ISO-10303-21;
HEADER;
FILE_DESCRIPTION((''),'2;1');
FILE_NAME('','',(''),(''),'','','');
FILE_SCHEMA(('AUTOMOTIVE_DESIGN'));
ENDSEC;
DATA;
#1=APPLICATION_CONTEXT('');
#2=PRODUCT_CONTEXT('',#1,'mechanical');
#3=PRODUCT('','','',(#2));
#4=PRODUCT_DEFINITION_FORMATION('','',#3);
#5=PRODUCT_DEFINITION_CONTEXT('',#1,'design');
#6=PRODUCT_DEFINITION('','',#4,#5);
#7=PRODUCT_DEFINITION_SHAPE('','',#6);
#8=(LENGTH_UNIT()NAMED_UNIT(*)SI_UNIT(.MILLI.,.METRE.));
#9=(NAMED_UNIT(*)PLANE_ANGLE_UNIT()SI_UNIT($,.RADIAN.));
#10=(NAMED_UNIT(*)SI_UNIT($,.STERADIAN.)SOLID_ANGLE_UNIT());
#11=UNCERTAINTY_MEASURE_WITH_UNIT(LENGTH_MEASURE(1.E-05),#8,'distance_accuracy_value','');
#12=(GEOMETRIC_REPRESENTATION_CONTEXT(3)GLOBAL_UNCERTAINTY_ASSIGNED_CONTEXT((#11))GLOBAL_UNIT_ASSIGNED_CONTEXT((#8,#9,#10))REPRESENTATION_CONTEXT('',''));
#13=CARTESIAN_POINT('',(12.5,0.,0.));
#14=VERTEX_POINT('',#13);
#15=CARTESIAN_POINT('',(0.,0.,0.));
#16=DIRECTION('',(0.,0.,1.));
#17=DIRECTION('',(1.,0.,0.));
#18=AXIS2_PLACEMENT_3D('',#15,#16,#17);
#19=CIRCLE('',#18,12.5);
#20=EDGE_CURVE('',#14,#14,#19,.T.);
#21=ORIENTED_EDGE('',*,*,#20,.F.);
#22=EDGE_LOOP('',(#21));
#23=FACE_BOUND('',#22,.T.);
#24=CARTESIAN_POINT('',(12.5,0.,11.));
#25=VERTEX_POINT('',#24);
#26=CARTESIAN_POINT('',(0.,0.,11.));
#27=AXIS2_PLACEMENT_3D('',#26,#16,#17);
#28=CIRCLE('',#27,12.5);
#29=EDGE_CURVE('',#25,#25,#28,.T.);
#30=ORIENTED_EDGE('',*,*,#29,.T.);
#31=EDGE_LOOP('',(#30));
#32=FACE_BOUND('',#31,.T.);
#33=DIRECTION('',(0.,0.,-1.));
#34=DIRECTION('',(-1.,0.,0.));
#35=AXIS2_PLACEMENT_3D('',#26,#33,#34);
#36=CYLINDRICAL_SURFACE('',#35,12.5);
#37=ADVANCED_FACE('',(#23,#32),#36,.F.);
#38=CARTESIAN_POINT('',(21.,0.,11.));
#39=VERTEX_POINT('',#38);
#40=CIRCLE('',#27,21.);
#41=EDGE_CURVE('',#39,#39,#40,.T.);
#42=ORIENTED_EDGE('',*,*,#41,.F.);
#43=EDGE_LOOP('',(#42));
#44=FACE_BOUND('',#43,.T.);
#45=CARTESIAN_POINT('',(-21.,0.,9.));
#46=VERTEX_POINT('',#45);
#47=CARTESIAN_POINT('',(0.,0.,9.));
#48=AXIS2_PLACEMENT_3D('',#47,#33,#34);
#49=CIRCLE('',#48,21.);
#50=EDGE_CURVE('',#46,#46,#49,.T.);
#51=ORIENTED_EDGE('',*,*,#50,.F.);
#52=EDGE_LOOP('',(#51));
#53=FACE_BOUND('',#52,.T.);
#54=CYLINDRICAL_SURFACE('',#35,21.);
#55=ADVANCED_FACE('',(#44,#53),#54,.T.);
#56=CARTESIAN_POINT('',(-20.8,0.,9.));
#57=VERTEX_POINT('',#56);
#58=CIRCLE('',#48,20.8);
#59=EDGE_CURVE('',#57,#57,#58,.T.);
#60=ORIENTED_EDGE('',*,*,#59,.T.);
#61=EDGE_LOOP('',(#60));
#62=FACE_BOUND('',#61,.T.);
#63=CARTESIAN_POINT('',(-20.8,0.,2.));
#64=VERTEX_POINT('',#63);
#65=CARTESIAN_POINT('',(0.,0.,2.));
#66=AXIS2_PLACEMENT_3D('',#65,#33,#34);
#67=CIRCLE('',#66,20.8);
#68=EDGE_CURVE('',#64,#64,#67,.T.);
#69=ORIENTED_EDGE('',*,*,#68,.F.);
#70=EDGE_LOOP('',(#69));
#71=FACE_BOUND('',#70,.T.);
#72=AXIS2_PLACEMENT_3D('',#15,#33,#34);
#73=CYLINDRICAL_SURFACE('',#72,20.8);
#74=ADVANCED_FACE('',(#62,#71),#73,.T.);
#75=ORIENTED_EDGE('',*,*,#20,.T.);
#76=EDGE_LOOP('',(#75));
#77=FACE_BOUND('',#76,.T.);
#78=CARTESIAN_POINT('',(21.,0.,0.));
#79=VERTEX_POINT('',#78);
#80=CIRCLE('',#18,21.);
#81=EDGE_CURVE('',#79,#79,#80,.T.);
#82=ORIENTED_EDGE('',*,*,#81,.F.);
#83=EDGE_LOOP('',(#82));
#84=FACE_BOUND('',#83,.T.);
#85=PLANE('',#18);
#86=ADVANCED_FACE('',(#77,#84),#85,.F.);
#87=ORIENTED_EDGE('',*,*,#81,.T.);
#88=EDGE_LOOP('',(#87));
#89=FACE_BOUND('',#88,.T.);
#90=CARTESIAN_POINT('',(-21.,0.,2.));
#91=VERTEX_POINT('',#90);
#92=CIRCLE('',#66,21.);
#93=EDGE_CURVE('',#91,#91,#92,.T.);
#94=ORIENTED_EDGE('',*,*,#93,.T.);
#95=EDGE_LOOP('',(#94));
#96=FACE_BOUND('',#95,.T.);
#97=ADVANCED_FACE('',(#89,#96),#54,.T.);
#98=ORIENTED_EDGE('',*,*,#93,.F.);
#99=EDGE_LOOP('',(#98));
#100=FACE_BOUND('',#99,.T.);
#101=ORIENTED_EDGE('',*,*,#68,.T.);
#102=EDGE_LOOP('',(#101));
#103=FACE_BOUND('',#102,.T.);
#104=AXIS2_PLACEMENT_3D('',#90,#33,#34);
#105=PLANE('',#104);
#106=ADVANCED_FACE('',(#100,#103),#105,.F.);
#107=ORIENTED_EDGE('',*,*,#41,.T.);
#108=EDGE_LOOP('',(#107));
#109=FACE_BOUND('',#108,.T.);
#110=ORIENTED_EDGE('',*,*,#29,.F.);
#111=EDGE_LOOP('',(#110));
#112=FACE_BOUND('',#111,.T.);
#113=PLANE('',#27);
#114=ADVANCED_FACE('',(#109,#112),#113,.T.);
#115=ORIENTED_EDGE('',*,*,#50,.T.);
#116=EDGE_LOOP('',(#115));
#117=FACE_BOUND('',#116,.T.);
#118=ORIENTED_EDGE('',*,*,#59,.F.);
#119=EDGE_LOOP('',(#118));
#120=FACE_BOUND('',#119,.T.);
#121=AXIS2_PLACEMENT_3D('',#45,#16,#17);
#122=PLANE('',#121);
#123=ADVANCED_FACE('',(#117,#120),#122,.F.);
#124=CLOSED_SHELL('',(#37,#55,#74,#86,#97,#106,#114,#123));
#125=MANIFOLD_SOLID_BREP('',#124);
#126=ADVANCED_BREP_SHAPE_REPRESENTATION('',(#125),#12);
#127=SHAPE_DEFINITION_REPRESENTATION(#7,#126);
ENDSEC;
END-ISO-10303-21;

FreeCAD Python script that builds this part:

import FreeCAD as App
import Part
import Sketcher
from FreeCAD import Vector

doc = App.newDocument("Part")
body = doc.addObject("PartDesign::Body", "Body")

# Sketch on XY plane
sketch1 = body.newObject("Sketcher::SketchObject", "Sketch")
sketch1.AttachmentSupport = (doc.getObject("XY_Plane"), [""])
sketch1.MapMode = "FlatFace"
sketch1.addGeometry(Part.Circle(Vector(0, 0, 0), Vector(0, 0, 1), 21), False)
sketch1.addGeometry(Part.Circle(Vector(0, 0, 0), Vector(0, 0, 1), 12), False)
sketch1.addConstraint(Sketcher.Constraint("Coincident", 0, 3, -1, 1))
sketch1.addConstraint(Sketcher.Constraint("Coincident", 1, 3, -1, 1))
sketch1.addConstraint(Sketcher.Constraint("Diameter", 0, 42.0))
sketch1.addConstraint(Sketcher.Constraint("Diameter", 1, 25.0))
pad1 = body.newObject("PartDesign::Pad", "Pad")
pad1.Profile = sketch1
pad1.Length = 11

# Sketch on XZ plane
sketch2 = body.newObject("Sketcher::SketchObject", "Sketch001")
sketch2.AttachmentSupport = (doc.getObject("XZ_Plane"), [""])
sketch2.MapMode = "FlatFace"
sketch2.addGeometry(Part.LineSegment(Vector(-21, 2, 0), Vector(-21, 9, 0)), False)
sketch2.addGeometry(Part.LineSegment(Vector(-21, 9, 0), Vector(-20.8, 9, 0)), False)
sketch2.addGeometry(Part.LineSegment(Vector(-20.8, 9, 0), Vector(-20.8, 2, 0)), False)
sketch2.addGeometry(Part.LineSegment(Vector(-20.8, 2, 0), Vector(-21, 2, 0)), False)
sketch2.addConstraint(Sketcher.Constraint("Coincident", 0, 2, 1, 1))
sketch2.addConstraint(Sketcher.Constraint("Coincident", 1, 2, 2, 1))
sketch2.addConstraint(Sketcher.Constraint("Coincident", 2, 2, 3, 1))
sketch2.addConstraint(Sketcher.Constraint("Coincident", 3, 2, 0, 1))
sketch2.addConstraint(Sketcher.Constraint("Vertical", 0))
sketch2.addConstraint(Sketcher.Constraint("Horizontal", 1))
sketch2.addConstraint(Sketcher.Constraint("Vertical", 2))
sketch2.addConstraint(Sketcher.Constraint("Horizontal", 3))
sketch2.addConstraint(Sketcher.Constraint("DistanceY", 0, 1, 0, 2, 7.0))
sketch2.addConstraint(Sketcher.Constraint("DistanceX", 1, 1, 1, 2, 0.2))
sketch2.addConstraint(Sketcher.Constraint("DistanceX", 0, 2, -1, 1, 21.0))
sketch2.addConstraint(Sketcher.Constraint("DistanceY", -1, 1, 0, 2, 9.0))
groove = body.newObject("PartDesign::Groove", "Groove")
groove.Profile = sketch2
groove.ReferenceAxis = (sketch2, ["V_Axis"])
groove.Angle = 360

doc.recompute()
